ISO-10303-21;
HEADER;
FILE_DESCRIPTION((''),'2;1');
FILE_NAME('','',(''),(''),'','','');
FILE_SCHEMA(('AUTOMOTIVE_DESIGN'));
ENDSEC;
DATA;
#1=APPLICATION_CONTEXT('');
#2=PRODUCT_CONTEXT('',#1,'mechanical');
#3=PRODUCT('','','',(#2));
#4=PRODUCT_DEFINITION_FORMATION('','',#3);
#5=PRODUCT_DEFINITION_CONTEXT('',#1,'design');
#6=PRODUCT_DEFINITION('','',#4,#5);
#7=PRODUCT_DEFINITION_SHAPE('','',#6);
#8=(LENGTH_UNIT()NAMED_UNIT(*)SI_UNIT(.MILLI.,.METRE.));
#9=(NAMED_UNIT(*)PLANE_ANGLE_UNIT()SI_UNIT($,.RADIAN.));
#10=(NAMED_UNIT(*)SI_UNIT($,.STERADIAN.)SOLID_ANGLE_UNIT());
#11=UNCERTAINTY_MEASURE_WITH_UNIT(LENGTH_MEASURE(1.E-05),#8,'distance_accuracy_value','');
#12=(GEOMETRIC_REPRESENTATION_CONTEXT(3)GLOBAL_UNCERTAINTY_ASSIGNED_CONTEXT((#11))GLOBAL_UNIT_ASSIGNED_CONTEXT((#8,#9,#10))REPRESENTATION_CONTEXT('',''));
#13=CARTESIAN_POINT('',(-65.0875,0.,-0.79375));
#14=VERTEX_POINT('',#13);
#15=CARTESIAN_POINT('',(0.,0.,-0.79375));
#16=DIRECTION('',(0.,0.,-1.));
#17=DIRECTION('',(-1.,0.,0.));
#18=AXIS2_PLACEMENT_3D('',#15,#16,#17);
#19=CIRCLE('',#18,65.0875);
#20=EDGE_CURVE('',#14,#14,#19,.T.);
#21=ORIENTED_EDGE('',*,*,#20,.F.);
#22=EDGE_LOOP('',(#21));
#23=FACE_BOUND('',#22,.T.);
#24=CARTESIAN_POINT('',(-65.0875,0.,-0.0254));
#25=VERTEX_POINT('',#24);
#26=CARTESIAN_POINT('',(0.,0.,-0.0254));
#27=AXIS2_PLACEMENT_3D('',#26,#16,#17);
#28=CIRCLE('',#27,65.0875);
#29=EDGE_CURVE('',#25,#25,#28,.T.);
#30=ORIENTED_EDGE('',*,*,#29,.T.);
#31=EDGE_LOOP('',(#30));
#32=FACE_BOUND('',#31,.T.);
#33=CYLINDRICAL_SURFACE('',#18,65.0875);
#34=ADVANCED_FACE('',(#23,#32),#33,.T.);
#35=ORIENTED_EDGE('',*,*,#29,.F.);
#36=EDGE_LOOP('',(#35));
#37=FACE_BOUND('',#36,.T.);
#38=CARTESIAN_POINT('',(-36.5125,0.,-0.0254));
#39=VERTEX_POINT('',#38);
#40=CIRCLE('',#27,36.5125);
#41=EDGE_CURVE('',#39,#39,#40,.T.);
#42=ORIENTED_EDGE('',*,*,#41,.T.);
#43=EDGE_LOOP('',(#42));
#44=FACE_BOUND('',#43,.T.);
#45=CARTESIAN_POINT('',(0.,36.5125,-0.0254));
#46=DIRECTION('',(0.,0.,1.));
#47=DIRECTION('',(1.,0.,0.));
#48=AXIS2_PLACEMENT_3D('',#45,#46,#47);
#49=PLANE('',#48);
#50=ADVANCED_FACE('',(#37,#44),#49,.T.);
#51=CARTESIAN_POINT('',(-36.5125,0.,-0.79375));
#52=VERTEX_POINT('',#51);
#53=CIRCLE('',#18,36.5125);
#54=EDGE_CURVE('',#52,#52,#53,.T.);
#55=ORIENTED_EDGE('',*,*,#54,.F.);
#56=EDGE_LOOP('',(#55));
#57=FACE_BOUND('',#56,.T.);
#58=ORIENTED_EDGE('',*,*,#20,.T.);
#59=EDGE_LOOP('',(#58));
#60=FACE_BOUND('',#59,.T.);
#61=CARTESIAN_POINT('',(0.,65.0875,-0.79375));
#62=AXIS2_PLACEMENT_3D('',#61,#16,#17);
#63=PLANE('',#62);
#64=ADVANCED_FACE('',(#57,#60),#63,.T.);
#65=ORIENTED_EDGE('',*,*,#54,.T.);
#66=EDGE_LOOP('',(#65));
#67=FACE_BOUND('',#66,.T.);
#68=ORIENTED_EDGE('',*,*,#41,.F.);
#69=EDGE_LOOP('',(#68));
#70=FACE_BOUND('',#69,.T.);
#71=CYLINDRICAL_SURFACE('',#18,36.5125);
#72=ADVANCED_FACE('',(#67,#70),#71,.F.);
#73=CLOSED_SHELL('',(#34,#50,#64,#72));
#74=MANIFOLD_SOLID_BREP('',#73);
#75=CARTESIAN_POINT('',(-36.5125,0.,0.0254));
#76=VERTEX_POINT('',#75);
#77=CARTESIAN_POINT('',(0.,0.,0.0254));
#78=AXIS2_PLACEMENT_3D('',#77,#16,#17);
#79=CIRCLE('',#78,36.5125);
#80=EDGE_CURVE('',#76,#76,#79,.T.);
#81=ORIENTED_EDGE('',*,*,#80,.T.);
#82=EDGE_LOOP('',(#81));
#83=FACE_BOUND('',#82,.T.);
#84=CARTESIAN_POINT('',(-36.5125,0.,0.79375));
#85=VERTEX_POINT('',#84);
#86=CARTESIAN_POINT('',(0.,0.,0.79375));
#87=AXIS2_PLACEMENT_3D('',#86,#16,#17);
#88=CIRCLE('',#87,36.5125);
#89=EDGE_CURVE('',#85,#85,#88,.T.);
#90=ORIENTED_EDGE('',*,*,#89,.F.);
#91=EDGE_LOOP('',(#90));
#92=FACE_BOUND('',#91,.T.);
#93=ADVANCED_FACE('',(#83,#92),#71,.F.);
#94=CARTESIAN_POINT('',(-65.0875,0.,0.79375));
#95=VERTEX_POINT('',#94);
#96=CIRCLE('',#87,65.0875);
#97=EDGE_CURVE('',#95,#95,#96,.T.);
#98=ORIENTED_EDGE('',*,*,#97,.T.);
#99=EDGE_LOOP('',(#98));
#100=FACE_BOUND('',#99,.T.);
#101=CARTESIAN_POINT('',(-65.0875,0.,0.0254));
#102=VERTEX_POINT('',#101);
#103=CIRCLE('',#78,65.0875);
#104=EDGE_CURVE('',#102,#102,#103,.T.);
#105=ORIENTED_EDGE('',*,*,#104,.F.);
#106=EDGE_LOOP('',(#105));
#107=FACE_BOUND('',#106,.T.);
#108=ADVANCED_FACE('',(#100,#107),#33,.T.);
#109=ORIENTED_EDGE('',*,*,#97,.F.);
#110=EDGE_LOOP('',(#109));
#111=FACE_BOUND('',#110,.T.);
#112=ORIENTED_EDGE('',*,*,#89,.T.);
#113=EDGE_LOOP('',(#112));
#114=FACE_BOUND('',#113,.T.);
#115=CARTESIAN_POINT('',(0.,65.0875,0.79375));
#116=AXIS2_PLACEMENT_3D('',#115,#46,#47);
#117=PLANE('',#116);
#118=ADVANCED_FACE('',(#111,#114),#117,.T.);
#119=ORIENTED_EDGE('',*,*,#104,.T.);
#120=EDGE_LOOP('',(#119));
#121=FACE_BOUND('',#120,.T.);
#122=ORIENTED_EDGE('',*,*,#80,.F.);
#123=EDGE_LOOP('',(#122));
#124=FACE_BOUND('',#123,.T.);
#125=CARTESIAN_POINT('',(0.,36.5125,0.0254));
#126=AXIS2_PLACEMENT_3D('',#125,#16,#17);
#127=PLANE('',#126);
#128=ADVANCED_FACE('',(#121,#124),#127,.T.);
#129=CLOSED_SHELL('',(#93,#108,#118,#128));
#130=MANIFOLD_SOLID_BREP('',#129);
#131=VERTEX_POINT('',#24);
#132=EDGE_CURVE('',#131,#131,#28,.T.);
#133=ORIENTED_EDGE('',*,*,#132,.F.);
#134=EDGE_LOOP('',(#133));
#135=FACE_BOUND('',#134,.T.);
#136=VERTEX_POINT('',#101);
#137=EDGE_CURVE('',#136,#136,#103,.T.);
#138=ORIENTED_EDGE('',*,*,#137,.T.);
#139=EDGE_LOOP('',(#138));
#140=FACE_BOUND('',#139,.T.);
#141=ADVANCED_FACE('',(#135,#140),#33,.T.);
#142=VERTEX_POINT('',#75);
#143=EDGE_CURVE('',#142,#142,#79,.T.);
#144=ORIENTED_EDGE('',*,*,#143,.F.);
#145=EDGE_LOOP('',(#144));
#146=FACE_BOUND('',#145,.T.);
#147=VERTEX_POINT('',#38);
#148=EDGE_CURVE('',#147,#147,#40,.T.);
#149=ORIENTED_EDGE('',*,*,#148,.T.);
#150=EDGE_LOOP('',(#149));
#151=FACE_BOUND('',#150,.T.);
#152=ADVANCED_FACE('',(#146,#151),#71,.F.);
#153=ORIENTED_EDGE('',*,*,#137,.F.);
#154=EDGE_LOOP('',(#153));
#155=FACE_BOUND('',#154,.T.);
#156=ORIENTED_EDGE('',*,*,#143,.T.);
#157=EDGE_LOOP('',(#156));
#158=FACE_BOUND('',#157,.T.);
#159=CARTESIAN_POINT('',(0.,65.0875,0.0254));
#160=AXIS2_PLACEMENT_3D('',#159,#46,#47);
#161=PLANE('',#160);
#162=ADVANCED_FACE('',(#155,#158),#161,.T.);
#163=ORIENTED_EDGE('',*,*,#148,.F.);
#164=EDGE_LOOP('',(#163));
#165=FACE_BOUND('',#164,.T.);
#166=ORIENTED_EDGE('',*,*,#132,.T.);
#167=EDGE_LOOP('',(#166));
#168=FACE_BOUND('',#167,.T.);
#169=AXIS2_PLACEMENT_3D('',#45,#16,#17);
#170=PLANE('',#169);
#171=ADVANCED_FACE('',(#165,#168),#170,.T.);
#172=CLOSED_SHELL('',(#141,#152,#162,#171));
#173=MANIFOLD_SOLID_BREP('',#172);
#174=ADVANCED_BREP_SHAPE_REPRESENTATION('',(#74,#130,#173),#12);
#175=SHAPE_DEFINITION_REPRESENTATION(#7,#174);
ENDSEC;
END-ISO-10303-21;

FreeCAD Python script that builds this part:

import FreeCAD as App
import Part
import Sketcher
Q = App.Units.Quantity


def add_polygon(sketch, points):
    """Adds a closed chain of lines whose ends are joined by coincident constraints."""
    first, n = sketch.GeometryCount, len(points)
    for a, b in zip(points, points[1:] + points[:1]):
        sketch.addGeometry(Part.LineSegment(App.Vector(*a, 0), App.Vector(*b, 0)), False)
    for i in range(n):
        sketch.addConstraint(Sketcher.Constraint("Coincident", first + i, 2, first + (i + 1) % n, 1))

doc = App.newDocument("Part")
body = doc.addObject("PartDesign::Body", "Body")

# Sketch on YZ plane
sketch1 = body.newObject("Sketcher::SketchObject", "Sketch")
sketch1.AttachmentSupport = (doc.getObject("YZ_Plane"), [""])
sketch1.MapMode = "FlatFace"
add_polygon(sketch1, [(65.09, 0.03), (36.51, 0.03), (36.51, -0.03), (65.09, -0.03)])  # lines 0-3
sketch1.addConstraint([
    Sketcher.Constraint("Horizontal", 0),
    Sketcher.Constraint("Vertical", 1),
    Sketcher.Constraint("Horizontal", 2),
    Sketcher.Constraint("Vertical", 3),
    Sketcher.Constraint("DistanceX", 0, 2, 0, 1, Q("1.125 in")),
    Sketcher.Constraint("DistanceY", 1, 2, 1, 1, Q("0.002 in")),
    Sketcher.Constraint("DistanceX", -1, 1, 0, 2, Q("1.4375 in")),
    Sketcher.Constraint("DistanceY", -1, 1, 0, 2, Q("0.001 in")),
])
revolution = body.newObject("PartDesign::Revolution", "Revolution")
revolution.Profile = sketch1
revolution.ReferenceAxis = (sketch1, ["V_Axis"])
revolution.Angle = 360
body2 = doc.addObject("PartDesign::Body", "Body001")
body2.AllowCompound = True

# Sketch on YZ plane
sketch2 = body2.newObject("Sketcher::SketchObject", "Sketch001")
sketch2.AttachmentSupport = (doc.getObject("YZ_Plane001"), [""])
sketch2.MapMode = "FlatFace"
add_polygon(sketch2, [(65.0875, 0.79375), (36.5125, 0.79375), (36.5125, 0.0254), (65.0875, 0.0254)])  # lines 0-3
add_polygon(sketch2, [(65.0875, -0.0254), (36.5125, -0.0254), (36.5125, -0.79375), (65.0875, -0.79375)])  # lines 4-7
sketch2.addConstraint([
    Sketcher.Constraint("Horizontal", 0),
    Sketcher.Constraint("Vertical", 1),
    Sketcher.Constraint("Horizontal", 2),
    Sketcher.Constraint("Vertical", 3),
    Sketcher.Constraint("Horizontal", 4),
    Sketcher.Constraint("Vertical", 5),
    Sketcher.Constraint("Horizontal", 6),
    Sketcher.Constraint("Vertical", 7),
    Sketcher.Constraint("Symmetric", 1, 2, 4, 2, -1),
    Sketcher.Constraint("Symmetric", 3, 2, 6, 2, -1),
    Sketcher.Constraint("DistanceX", 0, 2, 0, 1, Q("1.125 in")),
    Sketcher.Constraint("DistanceX", -1, 1, 0, 2, Q("1.4375 in")),
    Sketcher.Constraint("DistanceY", -1, 1, 0, 2, Q("0.03125 in")),
    Sketcher.Constraint("DistanceY", -1, 1, 1, 2, Q("0.001 in")),
])
revolution2 = body2.newObject("PartDesign::Revolution", "Revolution001")
revolution2.Profile = sketch2
revolution2.ReferenceAxis = (sketch2, ["V_Axis"])
revolution2.Angle = 360

doc.recompute()
